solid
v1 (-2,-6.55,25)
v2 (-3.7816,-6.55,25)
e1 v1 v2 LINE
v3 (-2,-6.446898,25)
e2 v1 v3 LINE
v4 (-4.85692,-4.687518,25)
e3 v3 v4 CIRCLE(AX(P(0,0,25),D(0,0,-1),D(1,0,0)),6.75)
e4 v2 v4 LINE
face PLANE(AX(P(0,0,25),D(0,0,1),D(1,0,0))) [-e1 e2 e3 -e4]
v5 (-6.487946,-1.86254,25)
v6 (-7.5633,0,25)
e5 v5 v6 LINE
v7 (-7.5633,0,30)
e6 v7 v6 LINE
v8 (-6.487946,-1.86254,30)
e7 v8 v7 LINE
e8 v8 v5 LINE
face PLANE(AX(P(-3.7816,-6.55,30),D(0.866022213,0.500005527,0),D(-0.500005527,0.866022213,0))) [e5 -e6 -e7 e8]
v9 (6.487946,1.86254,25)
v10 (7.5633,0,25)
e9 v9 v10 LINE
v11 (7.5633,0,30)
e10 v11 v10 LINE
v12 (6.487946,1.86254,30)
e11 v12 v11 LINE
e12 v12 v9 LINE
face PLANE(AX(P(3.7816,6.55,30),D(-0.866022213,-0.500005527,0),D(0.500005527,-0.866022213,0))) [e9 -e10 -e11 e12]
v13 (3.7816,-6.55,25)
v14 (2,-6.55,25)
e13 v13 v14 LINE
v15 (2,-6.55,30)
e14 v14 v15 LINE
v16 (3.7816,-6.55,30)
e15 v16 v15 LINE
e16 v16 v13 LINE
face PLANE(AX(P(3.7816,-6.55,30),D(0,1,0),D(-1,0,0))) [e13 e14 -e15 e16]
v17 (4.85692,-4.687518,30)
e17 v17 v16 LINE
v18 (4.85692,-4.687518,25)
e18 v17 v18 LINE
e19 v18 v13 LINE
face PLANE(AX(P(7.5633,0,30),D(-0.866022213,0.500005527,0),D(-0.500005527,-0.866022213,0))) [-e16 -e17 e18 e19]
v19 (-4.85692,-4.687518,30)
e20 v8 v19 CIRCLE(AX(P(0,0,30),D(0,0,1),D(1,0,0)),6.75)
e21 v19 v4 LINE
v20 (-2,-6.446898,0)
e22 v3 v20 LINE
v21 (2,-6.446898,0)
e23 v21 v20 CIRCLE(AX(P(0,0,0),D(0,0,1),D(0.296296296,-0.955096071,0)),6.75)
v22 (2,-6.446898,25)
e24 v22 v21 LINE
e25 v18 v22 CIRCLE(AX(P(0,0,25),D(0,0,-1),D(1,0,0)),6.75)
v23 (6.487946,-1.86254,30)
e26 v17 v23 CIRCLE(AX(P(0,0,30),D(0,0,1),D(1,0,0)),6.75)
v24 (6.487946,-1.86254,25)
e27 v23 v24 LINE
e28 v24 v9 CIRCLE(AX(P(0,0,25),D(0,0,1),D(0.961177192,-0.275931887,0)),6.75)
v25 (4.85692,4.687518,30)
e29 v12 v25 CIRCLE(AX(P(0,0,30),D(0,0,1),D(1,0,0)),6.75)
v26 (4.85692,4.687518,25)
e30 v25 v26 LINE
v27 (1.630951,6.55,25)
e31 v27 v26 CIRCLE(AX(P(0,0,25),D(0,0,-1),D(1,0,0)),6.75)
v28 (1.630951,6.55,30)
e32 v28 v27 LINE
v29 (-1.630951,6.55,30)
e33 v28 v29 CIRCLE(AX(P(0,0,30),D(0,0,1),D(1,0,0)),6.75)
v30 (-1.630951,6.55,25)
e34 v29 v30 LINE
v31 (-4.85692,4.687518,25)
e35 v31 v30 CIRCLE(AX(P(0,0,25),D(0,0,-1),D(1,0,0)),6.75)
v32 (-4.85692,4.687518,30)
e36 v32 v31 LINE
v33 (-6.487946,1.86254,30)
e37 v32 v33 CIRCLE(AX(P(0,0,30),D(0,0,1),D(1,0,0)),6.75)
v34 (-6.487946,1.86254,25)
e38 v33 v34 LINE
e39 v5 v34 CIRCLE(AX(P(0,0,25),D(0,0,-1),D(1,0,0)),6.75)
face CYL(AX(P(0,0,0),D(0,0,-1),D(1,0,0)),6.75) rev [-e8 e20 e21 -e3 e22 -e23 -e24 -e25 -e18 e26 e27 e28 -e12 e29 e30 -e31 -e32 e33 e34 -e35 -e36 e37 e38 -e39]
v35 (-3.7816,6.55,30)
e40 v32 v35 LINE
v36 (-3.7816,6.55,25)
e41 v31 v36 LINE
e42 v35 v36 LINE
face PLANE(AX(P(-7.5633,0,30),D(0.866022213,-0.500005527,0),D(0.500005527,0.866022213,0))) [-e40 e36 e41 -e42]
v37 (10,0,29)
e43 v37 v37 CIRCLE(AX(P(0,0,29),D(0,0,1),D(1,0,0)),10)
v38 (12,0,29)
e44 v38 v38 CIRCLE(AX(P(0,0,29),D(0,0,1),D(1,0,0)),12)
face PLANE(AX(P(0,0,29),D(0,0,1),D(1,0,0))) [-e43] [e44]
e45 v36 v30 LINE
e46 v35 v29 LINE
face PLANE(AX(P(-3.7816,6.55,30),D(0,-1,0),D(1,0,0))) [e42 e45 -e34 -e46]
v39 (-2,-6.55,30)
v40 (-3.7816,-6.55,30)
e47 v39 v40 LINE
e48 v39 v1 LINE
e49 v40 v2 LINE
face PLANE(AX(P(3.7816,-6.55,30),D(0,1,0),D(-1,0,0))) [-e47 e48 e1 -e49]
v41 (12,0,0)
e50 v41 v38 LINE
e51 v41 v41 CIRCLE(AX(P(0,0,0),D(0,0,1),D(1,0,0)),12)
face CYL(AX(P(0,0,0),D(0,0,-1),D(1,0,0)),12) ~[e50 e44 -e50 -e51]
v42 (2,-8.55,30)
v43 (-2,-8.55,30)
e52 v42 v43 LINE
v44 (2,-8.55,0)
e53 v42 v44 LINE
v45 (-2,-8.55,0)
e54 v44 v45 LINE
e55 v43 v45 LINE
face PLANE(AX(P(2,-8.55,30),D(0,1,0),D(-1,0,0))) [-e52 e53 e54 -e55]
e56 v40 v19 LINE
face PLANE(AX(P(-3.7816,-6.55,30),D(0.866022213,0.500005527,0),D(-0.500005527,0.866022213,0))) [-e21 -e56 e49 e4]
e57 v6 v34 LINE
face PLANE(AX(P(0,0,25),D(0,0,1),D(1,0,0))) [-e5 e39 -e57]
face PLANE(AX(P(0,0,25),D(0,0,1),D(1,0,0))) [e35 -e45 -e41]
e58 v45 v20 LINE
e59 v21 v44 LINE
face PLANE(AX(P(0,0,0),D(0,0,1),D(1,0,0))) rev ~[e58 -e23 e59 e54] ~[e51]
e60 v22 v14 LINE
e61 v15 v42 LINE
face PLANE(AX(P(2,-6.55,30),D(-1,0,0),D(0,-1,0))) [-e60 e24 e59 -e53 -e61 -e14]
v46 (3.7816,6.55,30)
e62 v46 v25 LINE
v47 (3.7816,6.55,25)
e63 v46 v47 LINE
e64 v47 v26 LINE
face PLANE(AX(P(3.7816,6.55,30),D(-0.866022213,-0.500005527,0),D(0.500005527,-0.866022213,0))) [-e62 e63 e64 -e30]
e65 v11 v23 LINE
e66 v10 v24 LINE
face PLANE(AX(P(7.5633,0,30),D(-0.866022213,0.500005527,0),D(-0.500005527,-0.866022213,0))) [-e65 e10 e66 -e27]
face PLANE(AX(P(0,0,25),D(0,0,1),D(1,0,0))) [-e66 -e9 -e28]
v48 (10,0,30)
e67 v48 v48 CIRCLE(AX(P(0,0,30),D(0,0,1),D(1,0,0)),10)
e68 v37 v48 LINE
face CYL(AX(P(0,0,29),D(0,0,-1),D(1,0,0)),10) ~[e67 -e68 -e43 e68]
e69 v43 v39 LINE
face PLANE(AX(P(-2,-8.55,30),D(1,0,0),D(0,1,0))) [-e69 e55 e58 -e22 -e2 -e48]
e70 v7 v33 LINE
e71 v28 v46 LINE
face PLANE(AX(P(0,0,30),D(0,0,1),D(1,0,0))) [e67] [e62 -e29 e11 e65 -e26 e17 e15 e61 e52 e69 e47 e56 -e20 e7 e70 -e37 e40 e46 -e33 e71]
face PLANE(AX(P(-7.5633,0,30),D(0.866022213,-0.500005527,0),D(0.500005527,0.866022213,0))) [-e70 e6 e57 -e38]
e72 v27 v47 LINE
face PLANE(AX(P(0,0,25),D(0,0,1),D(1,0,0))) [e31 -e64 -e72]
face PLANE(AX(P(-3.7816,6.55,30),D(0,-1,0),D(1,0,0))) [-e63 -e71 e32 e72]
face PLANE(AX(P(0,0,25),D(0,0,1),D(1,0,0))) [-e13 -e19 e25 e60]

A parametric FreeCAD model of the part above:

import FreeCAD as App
import Part
import Sketcher

V = App.Vector
Q = App.Units.Quantity


def add_polygon(sketch, points):
    """Adds a closed chain of lines whose ends are joined by coincident constraints."""
    first, n = sketch.GeometryCount, len(points)
    for a, b in zip(points, points[1:] + points[:1]):
        sketch.addGeometry(Part.LineSegment(App.Vector(*a, 0), App.Vector(*b, 0)), False)
    for i in range(n):
        sketch.addConstraint(Sketcher.Constraint("Coincident", first + i, 2, first + (i + 1) % n, 1))

doc = App.newDocument("Part")
body = doc.addObject("PartDesign::Body", "Body")

# Sketch on XY plane
sketch1 = body.newObject("Sketcher::SketchObject", "Sketch")
sketch1.AttachmentSupport = (doc.getObject("XY_Plane"), [""])
sketch1.MapMode = "FlatFace"
sketch1.addGeometry(Part.Circle(V(0, 0, 0), V(0, 0, 1), 12), False)
sketch1.addGeometry(Part.Circle(V(0, 0, 0), V(0, 0, 1), 7), False)
sketch1.addConstraint(Sketcher.Constraint("Coincident", 0, 3, -1, 1))
sketch1.addConstraint(Sketcher.Constraint("Coincident", 1, 3, -1, 1))
sketch1.addConstraint(Sketcher.Constraint("Diameter", 0, 24.0))
sketch1.addConstraint(Sketcher.Constraint("Diameter", 1, 13.5))
pad1 = body.newObject("PartDesign::Pad", "Pad")
pad1.Profile = sketch1
pad1.Length = 29

# Sketch on XY plane
sketch2 = body.newObject("Sketcher::SketchObject", "Sketch001")
sketch2.AttachmentSupport = (doc.getObject("XY_Plane"), [""])
sketch2.MapMode = "FlatFace"
sketch2.AttachmentOffset = App.Placement(V(0, 0, 29), App.Rotation())
sketch2.addGeometry(Part.Circle(V(0, 0, 0), V(0, 0, 1), 10), False)
sketch2.addGeometry(Part.Circle(V(0, 0, 0), V(0, 0, 1), 7), False)
sketch2.addConstraint(Sketcher.Constraint("Coincident", 0, 3, -1, 1))
sketch2.addConstraint(Sketcher.Constraint("Coincident", 1, 3, -1, 1))
sketch2.addConstraint(Sketcher.Constraint("Diameter", 0, 20.0))
sketch2.addConstraint(Sketcher.Constraint("Diameter", 1, 13.5))
pad2 = body.newObject("PartDesign::Pad", "Pad001")
pad2.Profile = sketch2
pad2.Length = 1

# Sketch on XY plane
sketch3 = body.newObject("Sketcher::SketchObject", "Sketch002")
sketch3.AttachmentSupport = (doc.getObject("XY_Plane"), [""])
sketch3.MapMode = "FlatFace"
sketch3.AttachmentOffset = App.Placement(V(0, 0, 30), App.Rotation())
add_polygon(sketch3, [(8, 0), (4, 7), (-4, 7), (-8, 0), (-4, -7), (4, -7)])  # lines 0-5
sketch3.addConstraint(Sketcher.Constraint("Horizontal", 1))
sketch3.addConstraint(Sketcher.Constraint("Horizontal", 4))
sketch3.addConstraint(Sketcher.Constraint("Symmetric", 0, 2, 3, 2, -1, 1))
sketch3.addConstraint(Sketcher.Constraint("Symmetric", 2, 2, 5, 2, -1, 1))
sketch3.addConstraint(Sketcher.Constraint("PointOnObject", 2, 2, -1))
sketch3.addConstraint(Sketcher.Constraint("Parallel", 2, 5))
sketch3.addConstraint(Sketcher.Constraint("Vertical", 1, 2, 3, 2))
sketch3.addConstraint(Sketcher.Constraint("DistanceY", 3, 2, 1, 2, 13.1))
sketch3.addConstraint(Sketcher.Constraint("Angle", 0, Q("120.0004 deg")))
sketch3.addConstraint(Sketcher.Constraint("DistanceX", 1, 2, 1, 1, 7.5632))
pocket1 = body.newObject("PartDesign::Pocket", "Pocket")
pocket1.Profile = sketch3
pocket1.Length = 5

# Sketch on XY plane
sketch4 = body.newObject("Sketcher::SketchObject", "Sketch003")
sketch4.AttachmentSupport = (doc.getObject("XY_Plane"), [""])
sketch4.MapMode = "FlatFace"
sketch4.AttachmentOffset = App.Placement(V(0, 0, 30), App.Rotation())
add_polygon(sketch4, [(-2, -8.6), (2, -8.6), (2, -4.5), (-2, -4.5)])  # lines 0-3
sketch4.addConstraint(Sketcher.Constraint("Horizontal", 0))
sketch4.addConstraint(Sketcher.Constraint("Vertical", 1))
sketch4.addConstraint(Sketcher.Constraint("Horizontal", 2))
sketch4.addConstraint(Sketcher.Constraint("Vertical", 3))
sketch4.addConstraint(Sketcher.Constraint("Equal", 2, 1))
sketch4.addConstraint(Sketcher.Constraint("DistanceX", 0, 1, 0, 2, 4.0))
sketch4.addConstraint(Sketcher.Constraint("DistanceX", -1, 1, 0, 2, 2.0))
sketch4.addConstraint(Sketcher.Constraint("DistanceY", 0, 2, -1, 1, 8.55))
pocket2 = body.newObject("PartDesign::Pocket", "Pocket001")
pocket2.Profile = sketch4
pocket2.Type = "ThroughAll"

doc.recompute()
